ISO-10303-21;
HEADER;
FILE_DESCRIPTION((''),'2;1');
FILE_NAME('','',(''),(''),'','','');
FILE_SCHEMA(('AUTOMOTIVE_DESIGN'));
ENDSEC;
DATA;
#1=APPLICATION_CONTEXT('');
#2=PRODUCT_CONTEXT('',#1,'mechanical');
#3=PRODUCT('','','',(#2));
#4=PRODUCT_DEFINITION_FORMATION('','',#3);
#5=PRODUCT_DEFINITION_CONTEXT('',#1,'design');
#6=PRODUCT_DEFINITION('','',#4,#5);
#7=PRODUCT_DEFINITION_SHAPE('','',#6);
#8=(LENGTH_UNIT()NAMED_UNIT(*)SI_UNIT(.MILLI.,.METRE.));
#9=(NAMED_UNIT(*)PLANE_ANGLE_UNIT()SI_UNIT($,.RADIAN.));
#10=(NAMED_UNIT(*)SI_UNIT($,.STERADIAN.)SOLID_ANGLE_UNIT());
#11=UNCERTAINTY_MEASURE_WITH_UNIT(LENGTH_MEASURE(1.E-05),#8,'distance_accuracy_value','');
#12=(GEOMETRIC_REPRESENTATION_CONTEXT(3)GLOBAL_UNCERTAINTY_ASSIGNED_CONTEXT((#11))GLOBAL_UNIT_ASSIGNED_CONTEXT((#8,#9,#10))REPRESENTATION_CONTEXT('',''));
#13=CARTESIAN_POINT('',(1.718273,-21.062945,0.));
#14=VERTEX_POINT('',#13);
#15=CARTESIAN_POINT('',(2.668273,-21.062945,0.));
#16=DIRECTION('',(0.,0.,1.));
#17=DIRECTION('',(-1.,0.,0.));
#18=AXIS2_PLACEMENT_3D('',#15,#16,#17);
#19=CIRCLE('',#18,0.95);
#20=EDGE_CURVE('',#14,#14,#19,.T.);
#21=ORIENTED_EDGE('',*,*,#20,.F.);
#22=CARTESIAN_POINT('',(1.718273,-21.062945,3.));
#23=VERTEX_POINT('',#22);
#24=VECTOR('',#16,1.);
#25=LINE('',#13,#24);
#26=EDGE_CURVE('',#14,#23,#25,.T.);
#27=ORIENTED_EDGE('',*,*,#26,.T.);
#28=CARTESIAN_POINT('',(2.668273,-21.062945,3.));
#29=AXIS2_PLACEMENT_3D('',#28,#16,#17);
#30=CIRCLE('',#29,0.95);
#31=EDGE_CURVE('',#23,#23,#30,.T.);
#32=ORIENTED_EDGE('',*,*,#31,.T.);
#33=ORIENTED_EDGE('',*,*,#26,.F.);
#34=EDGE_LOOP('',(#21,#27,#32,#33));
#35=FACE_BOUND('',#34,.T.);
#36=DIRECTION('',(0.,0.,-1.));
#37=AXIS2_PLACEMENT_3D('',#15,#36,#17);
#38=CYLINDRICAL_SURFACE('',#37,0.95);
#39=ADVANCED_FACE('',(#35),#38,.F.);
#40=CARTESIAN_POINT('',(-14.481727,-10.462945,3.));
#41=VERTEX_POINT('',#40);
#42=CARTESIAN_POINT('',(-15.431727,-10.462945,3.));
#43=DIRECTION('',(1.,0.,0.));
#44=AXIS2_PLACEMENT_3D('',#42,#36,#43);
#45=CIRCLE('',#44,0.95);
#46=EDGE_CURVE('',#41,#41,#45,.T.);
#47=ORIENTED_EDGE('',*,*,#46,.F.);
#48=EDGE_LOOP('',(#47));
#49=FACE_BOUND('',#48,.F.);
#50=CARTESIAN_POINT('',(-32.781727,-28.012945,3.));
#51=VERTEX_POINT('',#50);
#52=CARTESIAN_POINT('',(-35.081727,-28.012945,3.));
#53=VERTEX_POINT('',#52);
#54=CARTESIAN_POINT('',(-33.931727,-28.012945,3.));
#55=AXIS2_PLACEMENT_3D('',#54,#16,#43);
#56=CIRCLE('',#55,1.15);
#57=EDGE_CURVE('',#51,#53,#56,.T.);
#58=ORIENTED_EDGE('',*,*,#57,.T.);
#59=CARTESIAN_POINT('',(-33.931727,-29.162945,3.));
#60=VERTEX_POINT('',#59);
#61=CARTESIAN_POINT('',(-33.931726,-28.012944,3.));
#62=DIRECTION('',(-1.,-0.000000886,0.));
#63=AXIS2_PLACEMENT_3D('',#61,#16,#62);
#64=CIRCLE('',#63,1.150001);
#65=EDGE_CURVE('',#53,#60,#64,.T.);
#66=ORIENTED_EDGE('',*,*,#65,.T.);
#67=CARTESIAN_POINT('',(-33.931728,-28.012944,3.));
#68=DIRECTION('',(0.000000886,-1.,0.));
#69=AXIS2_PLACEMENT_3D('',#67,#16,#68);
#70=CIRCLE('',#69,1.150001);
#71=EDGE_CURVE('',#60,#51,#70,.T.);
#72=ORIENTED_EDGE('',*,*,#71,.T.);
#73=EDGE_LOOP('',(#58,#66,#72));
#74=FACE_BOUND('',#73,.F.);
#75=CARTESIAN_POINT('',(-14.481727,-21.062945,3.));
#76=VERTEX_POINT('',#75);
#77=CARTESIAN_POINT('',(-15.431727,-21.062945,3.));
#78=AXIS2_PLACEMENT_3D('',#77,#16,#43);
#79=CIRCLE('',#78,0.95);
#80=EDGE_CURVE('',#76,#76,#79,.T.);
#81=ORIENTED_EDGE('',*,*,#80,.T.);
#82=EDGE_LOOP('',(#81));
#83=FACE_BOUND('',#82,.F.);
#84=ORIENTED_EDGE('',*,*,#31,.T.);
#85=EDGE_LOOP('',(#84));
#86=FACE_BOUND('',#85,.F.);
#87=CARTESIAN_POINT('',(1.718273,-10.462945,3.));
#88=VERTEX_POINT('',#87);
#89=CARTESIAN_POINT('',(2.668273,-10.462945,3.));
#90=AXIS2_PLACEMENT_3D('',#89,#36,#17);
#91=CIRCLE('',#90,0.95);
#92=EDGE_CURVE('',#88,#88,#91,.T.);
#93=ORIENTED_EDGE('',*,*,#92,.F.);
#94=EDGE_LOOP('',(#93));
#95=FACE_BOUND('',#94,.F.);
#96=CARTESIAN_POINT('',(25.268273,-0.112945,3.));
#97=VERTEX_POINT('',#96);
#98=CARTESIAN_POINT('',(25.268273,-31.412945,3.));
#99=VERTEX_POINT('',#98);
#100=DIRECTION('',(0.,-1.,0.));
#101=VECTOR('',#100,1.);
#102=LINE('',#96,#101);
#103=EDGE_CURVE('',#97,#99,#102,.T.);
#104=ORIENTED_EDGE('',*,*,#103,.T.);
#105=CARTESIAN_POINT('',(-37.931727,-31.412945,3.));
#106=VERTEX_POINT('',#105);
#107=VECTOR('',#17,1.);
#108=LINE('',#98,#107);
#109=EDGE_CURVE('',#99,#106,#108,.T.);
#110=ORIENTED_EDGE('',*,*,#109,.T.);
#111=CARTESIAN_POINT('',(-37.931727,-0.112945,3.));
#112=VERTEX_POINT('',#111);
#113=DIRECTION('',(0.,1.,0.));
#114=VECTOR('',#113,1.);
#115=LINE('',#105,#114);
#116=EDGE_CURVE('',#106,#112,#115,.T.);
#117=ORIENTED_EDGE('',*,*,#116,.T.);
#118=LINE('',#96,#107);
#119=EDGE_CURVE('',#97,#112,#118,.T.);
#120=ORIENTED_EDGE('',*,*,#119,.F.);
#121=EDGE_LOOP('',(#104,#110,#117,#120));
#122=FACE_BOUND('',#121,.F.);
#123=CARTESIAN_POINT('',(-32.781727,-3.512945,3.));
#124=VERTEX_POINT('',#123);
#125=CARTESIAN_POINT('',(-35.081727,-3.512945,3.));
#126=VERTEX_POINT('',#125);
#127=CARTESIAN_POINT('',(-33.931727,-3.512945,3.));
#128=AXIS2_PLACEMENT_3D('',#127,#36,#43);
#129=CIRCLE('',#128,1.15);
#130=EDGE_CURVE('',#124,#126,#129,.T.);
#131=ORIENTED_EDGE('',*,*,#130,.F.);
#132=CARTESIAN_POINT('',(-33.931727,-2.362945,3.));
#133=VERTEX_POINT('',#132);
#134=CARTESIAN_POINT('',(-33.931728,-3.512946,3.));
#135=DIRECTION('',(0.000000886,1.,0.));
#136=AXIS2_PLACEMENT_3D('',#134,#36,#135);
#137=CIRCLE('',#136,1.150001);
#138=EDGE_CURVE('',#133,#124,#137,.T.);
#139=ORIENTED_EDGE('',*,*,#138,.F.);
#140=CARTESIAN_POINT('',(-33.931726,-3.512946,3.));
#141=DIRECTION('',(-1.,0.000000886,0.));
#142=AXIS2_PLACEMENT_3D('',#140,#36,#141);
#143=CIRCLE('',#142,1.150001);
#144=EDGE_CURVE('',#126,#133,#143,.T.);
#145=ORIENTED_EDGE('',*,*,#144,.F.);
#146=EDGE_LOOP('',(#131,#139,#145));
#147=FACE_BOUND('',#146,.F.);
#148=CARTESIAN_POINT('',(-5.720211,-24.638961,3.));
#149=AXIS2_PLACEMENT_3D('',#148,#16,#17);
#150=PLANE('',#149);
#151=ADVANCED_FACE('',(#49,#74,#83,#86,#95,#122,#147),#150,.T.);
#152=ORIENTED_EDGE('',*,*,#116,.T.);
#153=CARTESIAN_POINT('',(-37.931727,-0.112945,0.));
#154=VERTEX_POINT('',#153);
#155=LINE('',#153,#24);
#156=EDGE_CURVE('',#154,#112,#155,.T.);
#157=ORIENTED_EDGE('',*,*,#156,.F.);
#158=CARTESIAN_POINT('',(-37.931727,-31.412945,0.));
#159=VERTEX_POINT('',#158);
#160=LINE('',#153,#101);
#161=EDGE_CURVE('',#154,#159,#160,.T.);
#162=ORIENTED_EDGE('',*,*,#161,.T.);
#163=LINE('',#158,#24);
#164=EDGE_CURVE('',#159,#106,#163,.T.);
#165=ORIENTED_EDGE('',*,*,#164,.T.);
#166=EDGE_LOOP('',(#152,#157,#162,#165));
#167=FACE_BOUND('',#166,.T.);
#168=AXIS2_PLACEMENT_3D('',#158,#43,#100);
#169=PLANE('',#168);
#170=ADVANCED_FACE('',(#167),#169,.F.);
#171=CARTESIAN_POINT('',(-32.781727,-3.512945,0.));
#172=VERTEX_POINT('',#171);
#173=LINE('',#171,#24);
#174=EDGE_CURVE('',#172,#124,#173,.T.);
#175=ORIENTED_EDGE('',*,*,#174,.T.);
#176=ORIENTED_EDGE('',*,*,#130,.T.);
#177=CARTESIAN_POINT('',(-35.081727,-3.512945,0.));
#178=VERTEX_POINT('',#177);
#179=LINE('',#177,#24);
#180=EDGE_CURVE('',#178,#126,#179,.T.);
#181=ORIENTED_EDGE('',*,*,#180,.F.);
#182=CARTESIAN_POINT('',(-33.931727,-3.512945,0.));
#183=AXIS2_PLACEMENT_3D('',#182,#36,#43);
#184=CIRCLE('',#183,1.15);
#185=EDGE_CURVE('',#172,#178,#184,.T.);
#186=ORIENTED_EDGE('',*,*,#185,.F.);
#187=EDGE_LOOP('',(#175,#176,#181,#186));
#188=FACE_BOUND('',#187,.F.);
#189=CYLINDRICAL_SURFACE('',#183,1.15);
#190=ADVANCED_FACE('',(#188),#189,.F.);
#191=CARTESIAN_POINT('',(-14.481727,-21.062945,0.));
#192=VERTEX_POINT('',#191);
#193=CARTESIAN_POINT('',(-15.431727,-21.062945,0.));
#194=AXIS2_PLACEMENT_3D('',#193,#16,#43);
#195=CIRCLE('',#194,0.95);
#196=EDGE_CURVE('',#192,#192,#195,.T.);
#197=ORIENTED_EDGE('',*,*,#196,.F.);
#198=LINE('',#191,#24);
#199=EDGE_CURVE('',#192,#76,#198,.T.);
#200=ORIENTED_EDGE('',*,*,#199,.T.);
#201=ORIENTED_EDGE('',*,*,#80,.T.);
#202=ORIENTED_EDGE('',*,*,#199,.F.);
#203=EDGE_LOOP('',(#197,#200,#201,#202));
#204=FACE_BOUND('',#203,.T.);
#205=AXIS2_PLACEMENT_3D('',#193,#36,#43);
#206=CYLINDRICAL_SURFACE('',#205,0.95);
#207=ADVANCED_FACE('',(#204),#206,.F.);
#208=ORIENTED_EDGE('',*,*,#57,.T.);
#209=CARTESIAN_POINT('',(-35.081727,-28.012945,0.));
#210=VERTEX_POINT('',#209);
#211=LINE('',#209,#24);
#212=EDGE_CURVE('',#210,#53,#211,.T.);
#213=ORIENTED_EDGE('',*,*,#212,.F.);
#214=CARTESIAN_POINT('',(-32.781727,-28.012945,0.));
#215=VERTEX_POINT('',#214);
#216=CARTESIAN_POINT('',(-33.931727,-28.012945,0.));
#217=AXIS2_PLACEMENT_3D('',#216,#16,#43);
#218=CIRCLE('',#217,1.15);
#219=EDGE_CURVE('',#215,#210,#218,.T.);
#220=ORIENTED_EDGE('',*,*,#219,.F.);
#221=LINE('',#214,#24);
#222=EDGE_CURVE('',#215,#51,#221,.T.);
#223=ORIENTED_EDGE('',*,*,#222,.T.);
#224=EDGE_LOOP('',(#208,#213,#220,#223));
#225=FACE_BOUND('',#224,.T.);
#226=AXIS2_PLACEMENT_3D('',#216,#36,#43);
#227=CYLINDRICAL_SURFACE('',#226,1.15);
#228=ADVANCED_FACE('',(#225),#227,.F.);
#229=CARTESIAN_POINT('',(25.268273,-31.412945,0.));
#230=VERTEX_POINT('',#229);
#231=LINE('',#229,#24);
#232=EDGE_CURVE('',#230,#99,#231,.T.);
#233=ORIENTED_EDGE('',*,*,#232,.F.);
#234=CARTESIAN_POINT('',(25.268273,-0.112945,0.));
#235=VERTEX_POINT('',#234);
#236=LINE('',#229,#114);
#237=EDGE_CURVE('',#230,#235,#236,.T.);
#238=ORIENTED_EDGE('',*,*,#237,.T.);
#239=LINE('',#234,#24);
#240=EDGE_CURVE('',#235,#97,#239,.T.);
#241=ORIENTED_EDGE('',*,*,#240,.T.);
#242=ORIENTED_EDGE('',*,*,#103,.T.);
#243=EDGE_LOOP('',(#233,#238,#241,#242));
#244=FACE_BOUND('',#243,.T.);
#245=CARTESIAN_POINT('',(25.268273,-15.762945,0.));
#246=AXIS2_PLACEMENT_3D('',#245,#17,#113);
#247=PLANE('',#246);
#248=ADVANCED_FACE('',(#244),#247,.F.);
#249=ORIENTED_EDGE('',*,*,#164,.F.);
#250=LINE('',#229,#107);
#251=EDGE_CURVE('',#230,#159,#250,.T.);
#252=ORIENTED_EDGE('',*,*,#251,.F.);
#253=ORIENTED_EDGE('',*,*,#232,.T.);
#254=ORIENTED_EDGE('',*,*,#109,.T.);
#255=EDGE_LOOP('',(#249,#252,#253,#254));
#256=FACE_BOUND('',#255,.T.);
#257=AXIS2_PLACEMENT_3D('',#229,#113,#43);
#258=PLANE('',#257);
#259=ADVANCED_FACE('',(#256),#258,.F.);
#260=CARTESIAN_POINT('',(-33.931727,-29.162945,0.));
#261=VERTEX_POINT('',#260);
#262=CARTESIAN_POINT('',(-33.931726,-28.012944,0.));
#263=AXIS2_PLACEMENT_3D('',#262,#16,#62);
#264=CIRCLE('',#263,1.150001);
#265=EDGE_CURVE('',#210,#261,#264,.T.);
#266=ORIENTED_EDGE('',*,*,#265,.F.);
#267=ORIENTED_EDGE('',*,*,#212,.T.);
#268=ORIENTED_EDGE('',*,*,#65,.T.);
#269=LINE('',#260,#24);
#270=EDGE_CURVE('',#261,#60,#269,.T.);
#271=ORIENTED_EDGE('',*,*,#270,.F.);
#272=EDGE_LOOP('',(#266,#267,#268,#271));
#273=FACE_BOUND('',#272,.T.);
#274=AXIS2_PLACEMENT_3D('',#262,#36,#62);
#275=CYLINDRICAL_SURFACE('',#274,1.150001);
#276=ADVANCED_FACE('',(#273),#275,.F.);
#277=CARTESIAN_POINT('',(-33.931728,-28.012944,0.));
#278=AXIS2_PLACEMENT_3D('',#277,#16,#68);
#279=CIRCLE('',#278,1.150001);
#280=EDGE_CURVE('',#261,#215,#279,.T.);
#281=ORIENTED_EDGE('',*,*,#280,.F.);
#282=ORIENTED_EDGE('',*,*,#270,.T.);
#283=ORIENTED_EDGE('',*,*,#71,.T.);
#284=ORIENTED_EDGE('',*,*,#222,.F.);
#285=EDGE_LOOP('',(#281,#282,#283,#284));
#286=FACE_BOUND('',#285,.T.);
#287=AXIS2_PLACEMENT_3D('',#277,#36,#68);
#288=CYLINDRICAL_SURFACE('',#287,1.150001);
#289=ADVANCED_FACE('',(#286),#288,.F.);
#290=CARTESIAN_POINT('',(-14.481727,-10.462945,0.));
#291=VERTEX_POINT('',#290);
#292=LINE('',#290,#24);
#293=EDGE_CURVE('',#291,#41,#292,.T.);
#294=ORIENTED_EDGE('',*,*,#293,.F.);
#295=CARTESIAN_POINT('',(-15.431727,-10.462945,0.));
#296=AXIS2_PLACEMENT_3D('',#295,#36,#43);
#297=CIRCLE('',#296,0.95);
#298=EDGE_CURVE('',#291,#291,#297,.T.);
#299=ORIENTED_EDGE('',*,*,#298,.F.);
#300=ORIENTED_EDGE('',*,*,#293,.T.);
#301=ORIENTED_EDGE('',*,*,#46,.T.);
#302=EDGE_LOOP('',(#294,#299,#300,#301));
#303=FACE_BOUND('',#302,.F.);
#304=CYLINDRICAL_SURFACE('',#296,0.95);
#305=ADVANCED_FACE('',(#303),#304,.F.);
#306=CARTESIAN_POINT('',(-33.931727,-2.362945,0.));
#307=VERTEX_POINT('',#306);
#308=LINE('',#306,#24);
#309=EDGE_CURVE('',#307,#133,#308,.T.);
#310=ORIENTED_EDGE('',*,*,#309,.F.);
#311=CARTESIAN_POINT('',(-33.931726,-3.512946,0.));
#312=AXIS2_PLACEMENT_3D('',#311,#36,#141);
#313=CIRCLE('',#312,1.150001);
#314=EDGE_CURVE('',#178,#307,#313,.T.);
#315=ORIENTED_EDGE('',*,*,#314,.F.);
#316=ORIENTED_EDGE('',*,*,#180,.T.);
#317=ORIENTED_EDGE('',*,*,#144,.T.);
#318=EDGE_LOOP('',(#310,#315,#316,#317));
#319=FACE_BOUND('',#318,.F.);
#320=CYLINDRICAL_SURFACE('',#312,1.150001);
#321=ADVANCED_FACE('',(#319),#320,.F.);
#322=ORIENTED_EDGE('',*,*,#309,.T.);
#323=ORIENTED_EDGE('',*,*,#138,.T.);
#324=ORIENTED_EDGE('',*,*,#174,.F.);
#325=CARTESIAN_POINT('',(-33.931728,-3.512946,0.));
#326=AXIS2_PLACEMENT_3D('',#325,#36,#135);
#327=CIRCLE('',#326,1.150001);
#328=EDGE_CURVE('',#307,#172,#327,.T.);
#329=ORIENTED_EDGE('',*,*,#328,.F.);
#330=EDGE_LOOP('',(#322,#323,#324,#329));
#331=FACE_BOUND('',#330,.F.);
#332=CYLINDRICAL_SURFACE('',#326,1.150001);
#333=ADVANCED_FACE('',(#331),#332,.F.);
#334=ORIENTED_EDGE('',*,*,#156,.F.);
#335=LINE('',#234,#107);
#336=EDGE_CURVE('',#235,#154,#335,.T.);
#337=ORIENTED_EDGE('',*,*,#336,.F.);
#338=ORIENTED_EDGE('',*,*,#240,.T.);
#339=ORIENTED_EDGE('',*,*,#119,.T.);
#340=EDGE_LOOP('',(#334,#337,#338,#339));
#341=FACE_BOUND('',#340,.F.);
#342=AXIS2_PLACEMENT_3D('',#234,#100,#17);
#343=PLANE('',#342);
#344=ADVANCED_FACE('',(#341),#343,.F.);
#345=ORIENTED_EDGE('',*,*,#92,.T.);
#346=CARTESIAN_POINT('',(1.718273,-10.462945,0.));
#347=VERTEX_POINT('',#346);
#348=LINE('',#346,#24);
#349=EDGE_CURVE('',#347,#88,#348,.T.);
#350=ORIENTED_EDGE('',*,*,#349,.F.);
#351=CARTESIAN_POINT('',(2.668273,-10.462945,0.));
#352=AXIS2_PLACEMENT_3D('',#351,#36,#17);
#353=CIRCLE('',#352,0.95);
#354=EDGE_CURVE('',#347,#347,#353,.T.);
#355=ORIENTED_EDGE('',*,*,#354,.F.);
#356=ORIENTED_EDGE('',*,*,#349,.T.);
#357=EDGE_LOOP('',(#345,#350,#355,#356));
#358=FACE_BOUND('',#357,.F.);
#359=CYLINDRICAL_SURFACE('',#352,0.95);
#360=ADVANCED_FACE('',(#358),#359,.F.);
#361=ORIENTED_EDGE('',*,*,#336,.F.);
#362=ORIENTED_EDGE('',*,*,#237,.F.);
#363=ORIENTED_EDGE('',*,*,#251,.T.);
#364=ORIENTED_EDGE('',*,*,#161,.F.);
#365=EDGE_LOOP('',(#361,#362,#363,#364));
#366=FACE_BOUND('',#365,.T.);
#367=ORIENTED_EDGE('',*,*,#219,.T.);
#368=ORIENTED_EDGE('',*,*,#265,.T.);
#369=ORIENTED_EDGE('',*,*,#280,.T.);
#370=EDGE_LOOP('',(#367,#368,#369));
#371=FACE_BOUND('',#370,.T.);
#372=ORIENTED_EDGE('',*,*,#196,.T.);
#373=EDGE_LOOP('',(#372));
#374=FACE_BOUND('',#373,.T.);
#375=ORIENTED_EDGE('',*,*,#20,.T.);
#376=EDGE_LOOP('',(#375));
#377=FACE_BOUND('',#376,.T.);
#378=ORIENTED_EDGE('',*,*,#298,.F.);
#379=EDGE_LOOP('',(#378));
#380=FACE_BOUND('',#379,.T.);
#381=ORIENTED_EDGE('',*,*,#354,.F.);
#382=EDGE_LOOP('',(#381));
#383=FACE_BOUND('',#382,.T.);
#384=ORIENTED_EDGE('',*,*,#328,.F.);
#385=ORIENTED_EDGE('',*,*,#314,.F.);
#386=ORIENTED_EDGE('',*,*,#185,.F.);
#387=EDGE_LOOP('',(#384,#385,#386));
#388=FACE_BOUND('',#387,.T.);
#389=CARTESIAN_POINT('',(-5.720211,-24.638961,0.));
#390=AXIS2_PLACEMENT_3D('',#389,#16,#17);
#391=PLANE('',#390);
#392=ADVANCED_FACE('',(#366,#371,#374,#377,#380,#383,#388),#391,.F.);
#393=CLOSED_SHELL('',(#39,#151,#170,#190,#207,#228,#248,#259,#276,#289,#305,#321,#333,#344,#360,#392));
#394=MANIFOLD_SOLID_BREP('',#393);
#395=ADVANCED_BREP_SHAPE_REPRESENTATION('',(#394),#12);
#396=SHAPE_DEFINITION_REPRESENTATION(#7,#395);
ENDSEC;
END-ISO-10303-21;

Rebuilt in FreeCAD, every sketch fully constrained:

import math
import FreeCAD as App
import Part
import Sketcher

V = App.Vector
Q = App.Units.Quantity

doc = App.newDocument("Part")
body = doc.addObject("PartDesign::Body", "Body")

sketch1 = body.newObject("Sketcher::SketchObject", "Sketch")
sketch1.AttachmentSupport = (doc.getObject("XY_Plane"), [""])
sketch1.MapMode = "FlatFace"
sketch1.addGeometry(Part.LineSegment(V(25.3, -0.1, 0), V(-37.9, -0.1, 0)), False)
sketch1.addGeometry(Part.LineSegment(V(-37.9, -0.1, 0), V(-37.9, -15.8, 0)), False)
sketch1.addGeometry(Part.LineSegment(V(-37.9, -15.8, 0), V(25.3, -15.8, 0)), False)
sketch1.addGeometry(Part.LineSegment(V(25.3, -15.8, 0), V(25.3, -0.1, 0)), False)
sketch1.addGeometry(Part.Circle(V(-15.4, -10.5, 0), V(0, 0, 1), 0.9), False)
sketch1.addGeometry(Part.ArcOfCircle(Part.Circle(V(-33.9, -3.5, 0), V(0, 0, 1), 1.2), math.radians(0), math.radians(90)), False)
sketch1.addGeometry(Part.ArcOfCircle(Part.Circle(V(-33.9, -3.5, 0), V(0, 0, 1), 1.1), math.radians(180), math.radians(360)), False)
sketch1.addGeometry(Part.ArcOfCircle(Part.Circle(V(-33.9, -3.5, 0), V(0, 0, 1), 1.2), math.radians(90), math.radians(180)), False)
sketch1.addGeometry(Part.Circle(V(2.7, -10.5, 0), V(0, 0, 1), 0.9), False)
sketch1.addConstraint(Sketcher.Constraint("Coincident", 0, 2, 1, 1))
sketch1.addConstraint(Sketcher.Constraint("Coincident", 1, 2, 2, 1))
sketch1.addConstraint(Sketcher.Constraint("Coincident", 2, 2, 3, 1))
sketch1.addConstraint(Sketcher.Constraint("Coincident", 3, 2, 0, 1))
sketch1.addConstraint(Sketcher.Constraint("Tangent", 5, 1, 6, 2))
sketch1.addConstraint(Sketcher.Constraint("Tangent", 6, 1, 7, 2))
sketch1.addConstraint(Sketcher.Constraint("Tangent", 7, 1, 5, 2))
sketch1.addConstraint(Sketcher.Constraint("Horizontal", 0))
sketch1.addConstraint(Sketcher.Constraint("Vertical", 1))
sketch1.addConstraint(Sketcher.Constraint("Horizontal", 2))
sketch1.addConstraint(Sketcher.Constraint("Vertical", 3))
sketch1.addConstraint(Sketcher.Constraint("Equal", 4, 8))
sketch1.addConstraint(Sketcher.Constraint("Horizontal", 4, 3, 8, 3))
sketch1.addConstraint(Sketcher.Constraint("Horizontal", 7, 3, 5, 1))
sketch1.addConstraint(Sketcher.Constraint("Horizontal", 5, 1, 6, 1))
sketch1.addConstraint(Sketcher.Constraint("Vertical", 6, 3, 7, 1))
sketch1.addConstraint(Sketcher.Constraint("Diameter", 4, Q("1.9 mm")))
sketch1.addConstraint(Sketcher.Constraint("Radius", 5, Q("1.150001 mm")))
sketch1.addConstraint(Sketcher.Constraint("DistanceX", 0, 2, 0, 1, Q("63.2 mm")))
sketch1.addConstraint(Sketcher.Constraint("DistanceX", 0, 2, 5, 3, Q("3.999999 mm")))
sketch1.addConstraint(Sketcher.Constraint("DistanceY", 1, 2, 1, 1, Q("15.65 mm")))
sketch1.addConstraint(Sketcher.Constraint("DistanceX", 5, 3, 4, 3, Q("18.500001 mm")))
sketch1.addConstraint(Sketcher.Constraint("DistanceX", 4, 3, 8, 3, Q("18.1 mm")))
sketch1.addConstraint(Sketcher.Constraint("DistanceY", 5, 3, 0, 2, Q("3.400001 mm")))
sketch1.addConstraint(Sketcher.Constraint("DistanceY", 1, 2, 4, 3, Q("5.3 mm")))
sketch1.addConstraint(Sketcher.Constraint("DistanceX", 5, 3, -1, 1, Q("33.931728 mm")))
sketch1.addConstraint(Sketcher.Constraint("DistanceY", 4, 3, -1, 1, Q("10.462945 mm")))
pad1 = body.newObject("PartDesign::Pad", "Pad")
pad1.Profile = sketch1
pad1.Length = 3
body2 = doc.addObject("PartDesign::Body", "Body001")
doc.recompute()

body2.BaseFeature = body
doc.recompute()

mirroring = doc.addObject("Part::Mirroring", "Mirroring")
mirroring.Source = body
mirroring.Base = V(-6.331727, -15.762945, 1.5)
mirroring.Normal = V(0, -1, 0)
body3 = doc.addObject("PartDesign::Body", "Body002")
body3.BaseFeature = mirroring
boolean = body2.newObject("PartDesign::Boolean", "Boolean")
boolean.Type = "Fuse"
boolean.addObjects([body3])
doc.recompute()
mirroring.Visibility = False

doc.recompute()
